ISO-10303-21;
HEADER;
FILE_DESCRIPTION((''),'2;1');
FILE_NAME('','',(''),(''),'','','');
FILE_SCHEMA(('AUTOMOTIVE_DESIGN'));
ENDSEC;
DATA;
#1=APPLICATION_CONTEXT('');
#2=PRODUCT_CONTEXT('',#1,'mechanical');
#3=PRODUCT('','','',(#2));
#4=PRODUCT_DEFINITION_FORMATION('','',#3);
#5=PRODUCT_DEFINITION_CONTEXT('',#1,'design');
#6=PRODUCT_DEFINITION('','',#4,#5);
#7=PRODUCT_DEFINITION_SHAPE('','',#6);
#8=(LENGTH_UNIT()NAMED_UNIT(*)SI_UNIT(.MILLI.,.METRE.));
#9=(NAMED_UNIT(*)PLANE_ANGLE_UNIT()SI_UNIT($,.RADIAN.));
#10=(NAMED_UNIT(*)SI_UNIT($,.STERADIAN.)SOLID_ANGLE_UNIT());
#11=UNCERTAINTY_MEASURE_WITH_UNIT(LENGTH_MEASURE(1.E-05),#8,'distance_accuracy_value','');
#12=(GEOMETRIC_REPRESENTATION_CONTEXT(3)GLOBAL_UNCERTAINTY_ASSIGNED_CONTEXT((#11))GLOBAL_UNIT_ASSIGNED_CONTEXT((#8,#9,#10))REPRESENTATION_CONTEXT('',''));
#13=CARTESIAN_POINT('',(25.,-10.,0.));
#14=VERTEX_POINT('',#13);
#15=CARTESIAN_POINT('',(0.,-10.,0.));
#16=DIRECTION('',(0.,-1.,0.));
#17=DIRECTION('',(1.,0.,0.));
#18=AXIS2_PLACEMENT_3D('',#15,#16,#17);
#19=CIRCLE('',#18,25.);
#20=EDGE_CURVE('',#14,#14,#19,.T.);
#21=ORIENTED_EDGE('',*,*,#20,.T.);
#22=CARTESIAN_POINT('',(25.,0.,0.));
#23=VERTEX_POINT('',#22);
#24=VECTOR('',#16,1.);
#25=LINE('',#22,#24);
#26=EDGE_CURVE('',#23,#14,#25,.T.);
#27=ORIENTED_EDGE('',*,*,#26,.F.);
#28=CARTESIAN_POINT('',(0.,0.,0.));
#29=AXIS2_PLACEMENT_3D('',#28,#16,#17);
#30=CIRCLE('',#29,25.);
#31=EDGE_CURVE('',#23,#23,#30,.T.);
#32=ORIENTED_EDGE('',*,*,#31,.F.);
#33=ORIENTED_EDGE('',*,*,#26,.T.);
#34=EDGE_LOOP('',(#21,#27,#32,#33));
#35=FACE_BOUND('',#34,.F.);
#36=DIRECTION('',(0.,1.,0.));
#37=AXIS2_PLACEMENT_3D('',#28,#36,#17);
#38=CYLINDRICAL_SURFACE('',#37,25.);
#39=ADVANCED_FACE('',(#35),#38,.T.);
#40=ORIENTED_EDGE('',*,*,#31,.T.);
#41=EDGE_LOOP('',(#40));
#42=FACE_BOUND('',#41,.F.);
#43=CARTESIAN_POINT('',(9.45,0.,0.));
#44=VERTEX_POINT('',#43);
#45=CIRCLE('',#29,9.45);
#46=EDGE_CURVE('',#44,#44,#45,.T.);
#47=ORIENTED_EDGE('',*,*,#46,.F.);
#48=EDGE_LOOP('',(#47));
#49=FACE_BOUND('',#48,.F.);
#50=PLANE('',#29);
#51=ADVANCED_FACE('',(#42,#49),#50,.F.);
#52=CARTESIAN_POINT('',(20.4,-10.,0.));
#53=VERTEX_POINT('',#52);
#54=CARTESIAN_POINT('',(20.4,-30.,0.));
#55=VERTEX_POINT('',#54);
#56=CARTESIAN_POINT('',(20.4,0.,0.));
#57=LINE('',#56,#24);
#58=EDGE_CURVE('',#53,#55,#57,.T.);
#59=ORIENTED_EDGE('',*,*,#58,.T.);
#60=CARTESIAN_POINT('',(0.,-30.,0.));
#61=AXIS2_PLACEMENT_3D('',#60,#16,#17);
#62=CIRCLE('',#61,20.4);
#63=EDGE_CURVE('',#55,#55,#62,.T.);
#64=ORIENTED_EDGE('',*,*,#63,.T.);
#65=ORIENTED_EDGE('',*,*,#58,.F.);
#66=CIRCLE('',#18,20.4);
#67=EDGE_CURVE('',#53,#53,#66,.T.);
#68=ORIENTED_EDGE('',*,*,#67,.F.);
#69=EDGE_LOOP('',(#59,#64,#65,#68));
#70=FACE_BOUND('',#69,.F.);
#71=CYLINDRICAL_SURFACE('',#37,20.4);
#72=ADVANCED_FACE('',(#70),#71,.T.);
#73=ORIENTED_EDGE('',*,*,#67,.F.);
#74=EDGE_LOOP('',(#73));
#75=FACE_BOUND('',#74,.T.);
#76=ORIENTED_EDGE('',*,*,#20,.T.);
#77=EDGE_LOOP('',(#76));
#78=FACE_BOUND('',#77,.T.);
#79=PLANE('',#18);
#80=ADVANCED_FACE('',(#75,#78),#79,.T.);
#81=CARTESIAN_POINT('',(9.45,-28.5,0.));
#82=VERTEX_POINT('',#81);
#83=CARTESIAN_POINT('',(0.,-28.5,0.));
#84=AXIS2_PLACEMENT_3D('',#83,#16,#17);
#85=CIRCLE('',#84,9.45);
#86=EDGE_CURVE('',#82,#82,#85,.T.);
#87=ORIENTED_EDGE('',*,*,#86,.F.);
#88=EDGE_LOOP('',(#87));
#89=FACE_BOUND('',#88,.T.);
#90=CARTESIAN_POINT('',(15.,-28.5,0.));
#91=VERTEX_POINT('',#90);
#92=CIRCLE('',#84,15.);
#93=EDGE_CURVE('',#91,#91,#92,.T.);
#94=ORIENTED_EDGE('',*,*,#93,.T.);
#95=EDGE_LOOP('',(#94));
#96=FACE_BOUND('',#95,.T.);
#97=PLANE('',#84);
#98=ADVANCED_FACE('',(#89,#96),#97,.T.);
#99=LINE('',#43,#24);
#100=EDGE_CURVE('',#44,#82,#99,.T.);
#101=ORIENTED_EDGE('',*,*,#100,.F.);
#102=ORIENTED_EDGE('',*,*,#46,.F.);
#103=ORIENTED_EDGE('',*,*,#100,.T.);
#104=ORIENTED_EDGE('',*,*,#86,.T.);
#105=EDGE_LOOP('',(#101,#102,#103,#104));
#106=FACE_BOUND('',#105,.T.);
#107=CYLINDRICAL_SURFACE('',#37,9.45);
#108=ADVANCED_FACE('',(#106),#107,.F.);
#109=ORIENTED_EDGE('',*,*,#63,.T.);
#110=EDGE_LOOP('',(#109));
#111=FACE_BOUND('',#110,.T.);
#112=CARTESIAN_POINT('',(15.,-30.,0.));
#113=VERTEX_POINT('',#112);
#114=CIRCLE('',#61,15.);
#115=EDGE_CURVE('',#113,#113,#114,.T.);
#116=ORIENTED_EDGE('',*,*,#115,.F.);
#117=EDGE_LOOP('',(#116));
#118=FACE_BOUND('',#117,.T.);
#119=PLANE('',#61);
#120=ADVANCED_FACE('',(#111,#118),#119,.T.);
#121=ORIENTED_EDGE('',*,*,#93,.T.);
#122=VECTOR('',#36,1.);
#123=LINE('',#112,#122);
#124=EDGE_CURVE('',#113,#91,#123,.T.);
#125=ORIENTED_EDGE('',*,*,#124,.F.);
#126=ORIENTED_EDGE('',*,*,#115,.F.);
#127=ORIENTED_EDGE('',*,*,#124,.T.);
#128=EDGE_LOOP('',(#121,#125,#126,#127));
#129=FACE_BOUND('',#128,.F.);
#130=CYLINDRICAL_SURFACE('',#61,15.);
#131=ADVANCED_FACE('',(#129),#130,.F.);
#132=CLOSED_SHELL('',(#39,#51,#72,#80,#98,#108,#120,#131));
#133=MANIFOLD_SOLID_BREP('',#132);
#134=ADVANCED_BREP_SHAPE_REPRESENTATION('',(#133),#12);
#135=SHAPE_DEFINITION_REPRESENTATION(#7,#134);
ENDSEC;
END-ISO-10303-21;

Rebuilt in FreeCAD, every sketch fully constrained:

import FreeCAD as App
import Part
import Sketcher

V = App.Vector

doc = App.newDocument("Part")
body = doc.addObject("PartDesign::Body", "Body")

sketch1 = doc.addObject("Sketcher::SketchObject", "Sketch")
body.addObject(sketch1)
sketch1.AttachmentSupport = (doc.XZ_Plane, [""])
sketch1.MapMode = "FlatFace"
sketch1.addGeometry([
    Part.Circle(V(0, 0, 0), V(0, 0, 1), 20),
    Part.Circle(V(0, 0, 0), V(0, 0, 1), 9),
], False)
sketch1.addConstraint([
    Sketcher.Constraint("Coincident", 0, 3, -1, 1),
    Sketcher.Constraint("Coincident", 1, 3, -1, 1),
    Sketcher.Constraint("Diameter", 0, 40.8),
    Sketcher.Constraint("Diameter", 1, 18.9),
])
pad1 = doc.addObject("PartDesign::Pad", "Pad")
body.addObject(pad1)
pad1.Profile = sketch1
pad1.Length = 30

sketch2 = doc.addObject("Sketcher::SketchObject", "Sketch001")
body.addObject(sketch2)
sketch2.AttachmentSupport = (doc.XZ_Plane, [""])
sketch2.MapMode = "FlatFace"
sketch2.addGeometry([
    Part.Circle(V(0, 0, 0), V(0, 0, 1), 25),
    Part.Circle(V(0, 0, 0), V(0, 0, 1), 20),
], False)
sketch2.addConstraint([
    Sketcher.Constraint("Coincident", 0, 3, -1, 1),
    Sketcher.Constraint("Coincident", 1, 3, -1, 1),
    Sketcher.Constraint("Diameter", 0, 50.0),
    Sketcher.Constraint("Diameter", 1, 40.8),
])
pad2 = doc.addObject("PartDesign::Pad", "Pad001")
body.addObject(pad2)
pad2.Profile = sketch2
pad2.Length = 10

sketch3 = doc.addObject("Sketcher::SketchObject", "Sketch002")
body.addObject(sketch3)
sketch3.AttachmentSupport = (doc.XZ_Plane, [""])
sketch3.MapMode = "FlatFace"
sketch3.AttachmentOffset = App.Placement(V(0, 0, 30), App.Rotation())
sketch3.addGeometry([
    Part.Circle(V(0, 0, 0), V(0, 0, 1), 15),
    Part.Circle(V(0, 0, 0), V(0, 0, 1), 9),
], False)
sketch3.addConstraint([
    Sketcher.Constraint("Coincident", 0, 3, -1, 1),
    Sketcher.Constraint("Coincident", 1, 3, -1, 1),
    Sketcher.Constraint("Diameter", 0, 30.0),
    Sketcher.Constraint("Diameter", 1, 18.9),
])
pocket1 = doc.addObject("PartDesign::Pocket", "Pocket")
body.addObject(pocket1)
pocket1.Profile = sketch3
pocket1.Length = 1.5

doc.recompute()
